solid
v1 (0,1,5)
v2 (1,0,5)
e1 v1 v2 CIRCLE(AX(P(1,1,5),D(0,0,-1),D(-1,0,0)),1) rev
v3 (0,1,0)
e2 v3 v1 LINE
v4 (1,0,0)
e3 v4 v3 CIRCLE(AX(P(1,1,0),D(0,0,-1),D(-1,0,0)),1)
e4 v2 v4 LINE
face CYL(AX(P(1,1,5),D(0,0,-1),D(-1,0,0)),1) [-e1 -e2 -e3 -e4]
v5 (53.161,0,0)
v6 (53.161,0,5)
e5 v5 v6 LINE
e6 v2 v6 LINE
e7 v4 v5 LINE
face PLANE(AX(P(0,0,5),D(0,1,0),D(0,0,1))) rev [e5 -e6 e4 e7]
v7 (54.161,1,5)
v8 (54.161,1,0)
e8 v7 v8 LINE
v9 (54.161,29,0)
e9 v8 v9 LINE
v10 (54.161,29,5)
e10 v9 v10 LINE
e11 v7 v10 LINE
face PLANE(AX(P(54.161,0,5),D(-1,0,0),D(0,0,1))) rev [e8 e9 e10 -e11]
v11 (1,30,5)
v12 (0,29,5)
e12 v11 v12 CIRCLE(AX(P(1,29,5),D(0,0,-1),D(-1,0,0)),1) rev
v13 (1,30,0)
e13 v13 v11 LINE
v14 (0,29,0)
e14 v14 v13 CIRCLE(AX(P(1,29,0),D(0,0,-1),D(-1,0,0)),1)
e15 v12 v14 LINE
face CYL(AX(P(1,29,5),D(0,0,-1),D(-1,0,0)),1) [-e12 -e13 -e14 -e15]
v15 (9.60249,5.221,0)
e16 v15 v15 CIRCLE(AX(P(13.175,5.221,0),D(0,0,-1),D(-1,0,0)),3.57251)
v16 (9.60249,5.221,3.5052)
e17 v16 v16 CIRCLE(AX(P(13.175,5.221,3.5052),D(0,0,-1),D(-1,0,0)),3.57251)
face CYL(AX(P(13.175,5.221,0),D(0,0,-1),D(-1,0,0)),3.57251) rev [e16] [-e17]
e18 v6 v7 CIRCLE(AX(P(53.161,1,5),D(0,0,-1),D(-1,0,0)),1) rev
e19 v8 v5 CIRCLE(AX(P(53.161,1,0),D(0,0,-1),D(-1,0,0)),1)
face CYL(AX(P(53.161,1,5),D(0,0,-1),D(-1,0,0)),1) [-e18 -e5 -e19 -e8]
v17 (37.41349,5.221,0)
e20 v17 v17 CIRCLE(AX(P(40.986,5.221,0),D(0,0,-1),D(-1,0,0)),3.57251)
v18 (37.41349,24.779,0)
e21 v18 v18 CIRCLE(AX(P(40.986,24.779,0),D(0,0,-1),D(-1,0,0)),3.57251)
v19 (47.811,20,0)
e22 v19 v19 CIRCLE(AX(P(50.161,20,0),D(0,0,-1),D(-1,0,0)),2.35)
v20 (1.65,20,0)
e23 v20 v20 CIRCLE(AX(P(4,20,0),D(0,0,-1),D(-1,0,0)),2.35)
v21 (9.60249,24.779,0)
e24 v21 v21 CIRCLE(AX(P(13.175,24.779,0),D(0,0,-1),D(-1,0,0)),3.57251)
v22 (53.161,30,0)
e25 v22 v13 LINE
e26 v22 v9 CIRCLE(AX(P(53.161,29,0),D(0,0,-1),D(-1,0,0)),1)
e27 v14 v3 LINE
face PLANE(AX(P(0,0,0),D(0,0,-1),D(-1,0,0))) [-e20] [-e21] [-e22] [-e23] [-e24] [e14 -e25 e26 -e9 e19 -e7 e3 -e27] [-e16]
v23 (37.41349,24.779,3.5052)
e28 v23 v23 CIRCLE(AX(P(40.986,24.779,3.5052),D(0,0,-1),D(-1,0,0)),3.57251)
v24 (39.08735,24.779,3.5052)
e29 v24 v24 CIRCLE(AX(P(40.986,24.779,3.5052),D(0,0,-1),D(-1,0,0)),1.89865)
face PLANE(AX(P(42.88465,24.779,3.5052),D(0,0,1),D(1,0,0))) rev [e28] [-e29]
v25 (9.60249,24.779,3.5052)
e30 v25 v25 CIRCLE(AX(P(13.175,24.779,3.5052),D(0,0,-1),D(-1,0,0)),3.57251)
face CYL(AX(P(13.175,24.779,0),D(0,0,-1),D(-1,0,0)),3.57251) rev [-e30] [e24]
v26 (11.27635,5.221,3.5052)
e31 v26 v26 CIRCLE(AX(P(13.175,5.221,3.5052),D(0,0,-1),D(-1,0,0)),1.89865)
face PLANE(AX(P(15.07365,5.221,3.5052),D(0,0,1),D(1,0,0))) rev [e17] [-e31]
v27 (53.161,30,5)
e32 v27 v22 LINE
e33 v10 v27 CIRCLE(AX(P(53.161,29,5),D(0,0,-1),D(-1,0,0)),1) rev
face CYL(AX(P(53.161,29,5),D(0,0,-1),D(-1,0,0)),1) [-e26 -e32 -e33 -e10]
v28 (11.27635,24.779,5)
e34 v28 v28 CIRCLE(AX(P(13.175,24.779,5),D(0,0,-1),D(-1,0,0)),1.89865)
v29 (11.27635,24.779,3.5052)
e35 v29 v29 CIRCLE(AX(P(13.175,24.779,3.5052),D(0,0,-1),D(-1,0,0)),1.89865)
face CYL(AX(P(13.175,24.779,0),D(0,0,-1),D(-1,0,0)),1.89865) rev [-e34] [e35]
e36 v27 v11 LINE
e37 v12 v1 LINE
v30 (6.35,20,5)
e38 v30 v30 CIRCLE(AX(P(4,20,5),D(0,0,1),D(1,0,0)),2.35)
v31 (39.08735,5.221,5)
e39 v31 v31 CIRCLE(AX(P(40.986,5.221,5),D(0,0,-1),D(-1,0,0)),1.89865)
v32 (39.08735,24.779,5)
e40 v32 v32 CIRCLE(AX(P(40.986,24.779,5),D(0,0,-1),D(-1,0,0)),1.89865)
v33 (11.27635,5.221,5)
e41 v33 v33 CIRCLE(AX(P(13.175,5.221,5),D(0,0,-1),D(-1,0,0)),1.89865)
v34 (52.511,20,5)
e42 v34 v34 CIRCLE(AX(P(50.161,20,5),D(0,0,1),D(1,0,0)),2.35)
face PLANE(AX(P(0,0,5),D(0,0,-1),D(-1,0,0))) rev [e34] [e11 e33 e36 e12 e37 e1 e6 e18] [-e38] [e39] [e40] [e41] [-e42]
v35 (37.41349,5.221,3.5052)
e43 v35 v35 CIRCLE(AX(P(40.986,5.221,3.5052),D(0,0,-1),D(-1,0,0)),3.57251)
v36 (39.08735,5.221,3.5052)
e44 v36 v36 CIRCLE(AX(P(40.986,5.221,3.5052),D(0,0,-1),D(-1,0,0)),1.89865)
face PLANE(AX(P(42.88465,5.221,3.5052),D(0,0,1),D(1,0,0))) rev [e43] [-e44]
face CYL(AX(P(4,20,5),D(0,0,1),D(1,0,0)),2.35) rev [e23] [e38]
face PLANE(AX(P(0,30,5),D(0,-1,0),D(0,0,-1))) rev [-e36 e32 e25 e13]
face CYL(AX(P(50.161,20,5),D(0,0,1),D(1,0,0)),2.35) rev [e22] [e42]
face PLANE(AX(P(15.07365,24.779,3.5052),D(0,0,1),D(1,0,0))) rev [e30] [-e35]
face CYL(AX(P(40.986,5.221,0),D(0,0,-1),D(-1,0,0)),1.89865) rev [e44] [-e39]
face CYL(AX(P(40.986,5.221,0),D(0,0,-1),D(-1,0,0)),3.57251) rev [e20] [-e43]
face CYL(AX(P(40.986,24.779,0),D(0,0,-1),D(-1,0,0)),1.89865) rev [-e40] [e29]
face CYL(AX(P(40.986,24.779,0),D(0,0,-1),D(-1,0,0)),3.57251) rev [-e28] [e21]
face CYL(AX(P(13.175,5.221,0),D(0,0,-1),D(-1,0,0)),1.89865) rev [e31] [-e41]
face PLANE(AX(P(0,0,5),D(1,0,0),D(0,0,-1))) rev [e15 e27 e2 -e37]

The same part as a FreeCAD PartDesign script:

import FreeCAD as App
import Part
import Sketcher
from FreeCAD import Vector


def edges_at(feature, points):
    """Names of the edges that pass closest to the given points."""
    edges = feature.Shape.Edges
    near = lambda p: min(range(len(edges)), key=lambda i: edges[i].distToShape(Part.Vertex(*p))[0])
    return sorted({f"Edge{near(p) + 1}" for p in points})

doc = App.newDocument("Part")
body = doc.addObject("PartDesign::Body", "Body")

# Sketch on XY plane
sketch1 = body.newObject("Sketcher::SketchObject", "Sketch")
sketch1.AttachmentSupport = (doc.getObject("XY_Plane"), [""])
sketch1.MapMode = "FlatFace"
sketch1.addGeometry(Part.LineSegment(Vector(0, 30, 0), Vector(0, 0, 0)), False)
sketch1.addGeometry(Part.LineSegment(Vector(0, 0, 0), Vector(54.161, 0, 0)), False)
sketch1.addGeometry(Part.LineSegment(Vector(54.161, 0, 0), Vector(54.161, 30, 0)), False)
sketch1.addGeometry(Part.LineSegment(Vector(54.161, 30, 0), Vector(0, 30, 0)), False)
sketch1.addConstraint(Sketcher.Constraint("Coincident", 0, 2, 1, 1))
sketch1.addConstraint(Sketcher.Constraint("Coincident", 1, 2, 2, 1))
sketch1.addConstraint(Sketcher.Constraint("Coincident", 2, 2, 3, 1))
sketch1.addConstraint(Sketcher.Constraint("Coincident", 3, 2, 0, 1))
sketch1.addConstraint(Sketcher.Constraint("Vertical", 0))
sketch1.addConstraint(Sketcher.Constraint("Horizontal", 1))
sketch1.addConstraint(Sketcher.Constraint("Vertical", 2))
sketch1.addConstraint(Sketcher.Constraint("Horizontal", 3))
sketch1.addConstraint(Sketcher.Constraint("Coincident", 0, 2, -1, 1))
sketch1.addConstraint(Sketcher.Constraint("DistanceY", 0, 2, 0, 1, 30.0))
sketch1.addConstraint(Sketcher.Constraint("DistanceX", 1, 1, 1, 2, 54.161))
pad1 = body.newObject("PartDesign::Pad", "Pad")
pad1.Profile = sketch1
pad1.Length = 5

# Sketch on XY plane
sketch2 = body.newObject("Sketcher::SketchObject", "Sketch001")
sketch2.AttachmentSupport = (doc.getObject("XY_Plane"), [""])
sketch2.MapMode = "FlatFace"
sketch2.AttachmentOffset = App.Placement(Vector(0, 0, 5), App.Rotation())
sketch2.addGeometry(Part.Circle(Vector(4, 20, 0), Vector(0, 0, 1), 2.35), False)
sketch2.addGeometry(Part.Circle(Vector(50.161, 20, 0), Vector(0, 0, 1), 2.35), False)
sketch2.addConstraint(Sketcher.Constraint("Equal", 0, 1))
sketch2.addConstraint(Sketcher.Constraint("Horizontal", 0, 3, 1, 3))
sketch2.addConstraint(Sketcher.Constraint("Diameter", 0, 4.7))
sketch2.addConstraint(Sketcher.Constraint("DistanceX", -1, 1, 0, 3, 4.0))
sketch2.addConstraint(Sketcher.Constraint("DistanceY", -1, 1, 0, 3, 20.0))
sketch2.addConstraint(Sketcher.Constraint("DistanceX", -1, 1, 1, 3, 50.161))
doc.recompute()
hole = body.newObject("PartDesign::Hole", "Hole")
hole.Profile = sketch2
hole.ThreadType = "None"
hole.Diameter = 4.7
hole.DepthType = "ThroughAll"
doc.recompute()

fillet = body.newObject("PartDesign::Fillet", "Fillet")
fillet.Base = (hole, edges_at(hole, [
    (0, 30, 2.5),
    (54.161, 30, 2.5),
    (54.161, 0, 2.5),
    (0, 0, 2.5),
]))
fillet.Radius = 1

# Sketch on XY plane
sketch3 = body.newObject("Sketcher::SketchObject", "Sketch002")
sketch3.AttachmentSupport = (doc.getObject("XY_Plane"), [""])
sketch3.MapMode = "FlatFace"
sketch3.addGeometry(Part.Circle(Vector(40.986, 24.779, 0), Vector(0, 0, 1), 1.89865), False)
sketch3.addGeometry(Part.Circle(Vector(13.175, 24.779, 0), Vector(0, 0, 1), 1.89865), False)
sketch3.addGeometry(Part.Circle(Vector(40.986, 5.221, 0), Vector(0, 0, 1), 1.89865), False)
sketch3.addGeometry(Part.Circle(Vector(13.175, 5.221, 0), Vector(0, 0, 1), 1.89865), False)
sketch3.addConstraint(Sketcher.Constraint("Equal", 0, 1))
sketch3.addConstraint(Sketcher.Constraint("Equal", 1, 2))
sketch3.addConstraint(Sketcher.Constraint("Equal", 2, 3))
sketch3.addConstraint(Sketcher.Constraint("Horizontal", 0, 3, 1, 3))
sketch3.addConstraint(Sketcher.Constraint("Horizontal", 2, 3, 3, 3))
sketch3.addConstraint(Sketcher.Constraint("Vertical", 0, 3, 2, 3))
sketch3.addConstraint(Sketcher.Constraint("Vertical", 1, 3, 3, 3))
sketch3.addConstraint(Sketcher.Constraint("Diameter", 0, 3.7973))
sketch3.addConstraint(Sketcher.Constraint("DistanceX", -1, 1, 0, 3, 40.986))
sketch3.addConstraint(Sketcher.Constraint("DistanceY", -1, 1, 0, 3, 24.779))
sketch3.addConstraint(Sketcher.Constraint("DistanceX", -1, 1, 1, 3, 13.175))
sketch3.addConstraint(Sketcher.Constraint("DistanceY", -1, 1, 2, 3, 5.221))
doc.recompute()
hole2 = body.newObject("PartDesign::Hole", "Hole001")
hole2.Profile = sketch3
hole2.ThreadType = "None"
hole2.Diameter = 3.7973
hole2.DepthType = "ThroughAll"
hole2.HoleCutType = "Counterbore"
hole2.HoleCutDiameter = 7.14502
hole2.HoleCutDepth = 3.5052
hole2.Reversed = True

doc.recompute()
